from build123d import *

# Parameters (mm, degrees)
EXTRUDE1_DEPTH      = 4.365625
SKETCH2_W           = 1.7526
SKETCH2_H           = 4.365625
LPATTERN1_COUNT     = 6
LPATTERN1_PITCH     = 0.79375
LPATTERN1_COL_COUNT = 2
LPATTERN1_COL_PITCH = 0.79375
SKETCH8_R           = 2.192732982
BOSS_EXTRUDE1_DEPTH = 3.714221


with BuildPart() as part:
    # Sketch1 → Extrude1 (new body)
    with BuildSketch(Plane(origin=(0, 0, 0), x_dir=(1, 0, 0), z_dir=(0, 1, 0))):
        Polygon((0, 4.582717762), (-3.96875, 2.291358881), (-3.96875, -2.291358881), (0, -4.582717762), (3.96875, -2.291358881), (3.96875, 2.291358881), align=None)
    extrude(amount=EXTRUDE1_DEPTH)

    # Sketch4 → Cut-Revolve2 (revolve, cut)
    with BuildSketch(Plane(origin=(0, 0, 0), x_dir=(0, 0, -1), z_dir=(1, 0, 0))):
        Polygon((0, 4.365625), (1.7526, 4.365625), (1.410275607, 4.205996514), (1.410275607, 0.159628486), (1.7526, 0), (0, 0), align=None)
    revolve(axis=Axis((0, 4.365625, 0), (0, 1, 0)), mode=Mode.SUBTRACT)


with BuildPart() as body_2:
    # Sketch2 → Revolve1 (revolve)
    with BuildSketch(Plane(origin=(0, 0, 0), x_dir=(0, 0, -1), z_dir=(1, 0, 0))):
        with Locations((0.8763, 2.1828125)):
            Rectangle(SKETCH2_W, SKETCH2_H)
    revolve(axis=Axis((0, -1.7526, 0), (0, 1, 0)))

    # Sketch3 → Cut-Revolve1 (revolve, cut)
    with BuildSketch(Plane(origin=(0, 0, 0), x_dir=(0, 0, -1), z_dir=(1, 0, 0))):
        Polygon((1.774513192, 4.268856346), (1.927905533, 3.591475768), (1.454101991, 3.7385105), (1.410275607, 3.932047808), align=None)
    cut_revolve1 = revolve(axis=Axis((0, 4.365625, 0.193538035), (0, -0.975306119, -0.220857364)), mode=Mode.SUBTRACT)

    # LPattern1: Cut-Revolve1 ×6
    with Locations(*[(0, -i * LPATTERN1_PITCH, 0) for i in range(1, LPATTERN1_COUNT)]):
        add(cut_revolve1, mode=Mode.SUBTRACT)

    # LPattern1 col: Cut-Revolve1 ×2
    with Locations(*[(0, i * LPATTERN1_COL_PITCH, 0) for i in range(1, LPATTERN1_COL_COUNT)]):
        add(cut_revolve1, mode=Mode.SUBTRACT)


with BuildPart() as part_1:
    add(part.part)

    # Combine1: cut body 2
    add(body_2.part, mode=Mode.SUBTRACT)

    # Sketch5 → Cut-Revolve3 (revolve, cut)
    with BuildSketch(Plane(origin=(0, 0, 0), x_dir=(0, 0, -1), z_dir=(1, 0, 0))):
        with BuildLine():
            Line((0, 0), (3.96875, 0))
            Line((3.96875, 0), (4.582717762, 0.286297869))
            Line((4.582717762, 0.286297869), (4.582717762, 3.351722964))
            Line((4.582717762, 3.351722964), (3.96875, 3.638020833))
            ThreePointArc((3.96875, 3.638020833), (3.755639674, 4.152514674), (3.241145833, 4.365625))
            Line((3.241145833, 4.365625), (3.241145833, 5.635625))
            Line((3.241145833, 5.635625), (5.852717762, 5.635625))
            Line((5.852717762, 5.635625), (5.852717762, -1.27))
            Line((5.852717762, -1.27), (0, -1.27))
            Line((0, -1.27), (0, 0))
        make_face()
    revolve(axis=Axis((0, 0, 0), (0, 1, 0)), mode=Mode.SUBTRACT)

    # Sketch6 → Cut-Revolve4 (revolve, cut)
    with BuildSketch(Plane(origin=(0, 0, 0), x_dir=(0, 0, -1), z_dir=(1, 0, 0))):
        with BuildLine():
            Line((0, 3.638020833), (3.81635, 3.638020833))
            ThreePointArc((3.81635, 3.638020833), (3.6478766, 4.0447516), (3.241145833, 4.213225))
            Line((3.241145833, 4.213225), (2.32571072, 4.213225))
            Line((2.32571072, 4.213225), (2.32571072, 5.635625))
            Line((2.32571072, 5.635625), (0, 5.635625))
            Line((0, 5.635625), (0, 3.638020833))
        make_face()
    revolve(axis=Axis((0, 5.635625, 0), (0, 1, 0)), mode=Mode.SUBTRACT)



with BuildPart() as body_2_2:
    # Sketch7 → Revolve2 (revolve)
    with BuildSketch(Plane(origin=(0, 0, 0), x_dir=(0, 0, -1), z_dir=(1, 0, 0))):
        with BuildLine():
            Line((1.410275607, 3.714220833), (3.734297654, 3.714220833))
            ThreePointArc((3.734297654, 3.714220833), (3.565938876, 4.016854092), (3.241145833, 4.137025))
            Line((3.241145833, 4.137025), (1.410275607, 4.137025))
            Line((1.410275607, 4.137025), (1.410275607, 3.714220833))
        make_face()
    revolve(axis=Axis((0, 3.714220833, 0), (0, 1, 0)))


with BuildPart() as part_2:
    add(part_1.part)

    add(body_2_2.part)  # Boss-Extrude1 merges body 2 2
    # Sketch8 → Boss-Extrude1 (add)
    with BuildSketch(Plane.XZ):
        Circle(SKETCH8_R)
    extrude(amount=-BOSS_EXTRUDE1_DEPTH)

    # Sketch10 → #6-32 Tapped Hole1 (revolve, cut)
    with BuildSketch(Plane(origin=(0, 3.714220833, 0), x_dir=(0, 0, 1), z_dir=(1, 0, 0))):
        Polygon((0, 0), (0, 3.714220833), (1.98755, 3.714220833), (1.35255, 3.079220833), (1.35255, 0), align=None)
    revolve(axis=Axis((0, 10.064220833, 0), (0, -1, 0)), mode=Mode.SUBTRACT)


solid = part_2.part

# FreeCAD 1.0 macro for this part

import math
import FreeCAD as App
import Part
import Sketcher
from FreeCAD import Vector
Q = App.Units.Quantity


def add_polygon(sketch, points):
    """Adds a closed chain of lines whose ends are joined by coincident constraints."""
    first, n = sketch.GeometryCount, len(points)
    for a, b in zip(points, points[1:] + points[:1]):
        sketch.addGeometry(Part.LineSegment(App.Vector(*a, 0), App.Vector(*b, 0)), False)
    for i in range(n):
        sketch.addConstraint(Sketcher.Constraint("Coincident", first + i, 2, first + (i + 1) % n, 1))

doc = App.newDocument("Part")
body = doc.addObject("PartDesign::Body", "Body")

# Sketch on XZ plane
sketch1 = body.newObject("Sketcher::SketchObject", "Sketch")
sketch1.AttachmentSupport = (doc.getObject("XZ_Plane"), [""])
sketch1.MapMode = "FlatFace"
add_polygon(sketch1, [(0, -4.6), (-4, -2.3), (-4, 2.3), (0, 4.6), (4, 2.3), (4, -2.3)])  # lines 0-5
sketch1.addConstraint(Sketcher.Constraint("Vertical", 1))
sketch1.addConstraint(Sketcher.Constraint("Vertical", 4))
sketch1.addConstraint(Sketcher.Constraint("Symmetric", 0, 2, 3, 2, -1, 1))
sketch1.addConstraint(Sketcher.Constraint("Symmetric", 2, 2, 5, 2, -1, 1))
sketch1.addConstraint(Sketcher.Constraint("PointOnObject", 2, 2, -2))
sketch1.addConstraint(Sketcher.Constraint("Parallel", 2, 5))
sketch1.addConstraint(Sketcher.Constraint("Horizontal", 1, 2, 3, 2))
sketch1.addConstraint(Sketcher.Constraint("Angle", 0, Q("150 deg")))
sketch1.addConstraint(Sketcher.Constraint("DistanceX", 0, 2, -1, 1, Q("0.15625 in")))
sketch1.addConstraint(Sketcher.Constraint("DistanceY", 1, 1, 1, 2, 4.582718))
pad1 = body.newObject("PartDesign::Pad", "Pad")
pad1.Profile = sketch1
pad1.Length = Q("0.171875 in")
pad1.Reversed = True

# Sketch on YZ plane
sketch2 = body.newObject("Sketcher::SketchObject", "Sketch001")
sketch2.AttachmentSupport = (doc.getObject("YZ_Plane"), [""])
sketch2.MapMode = "FlatFace"
add_polygon(sketch2, [(4.37, -1.75), (4.37, 0), (0, 0), (0, -1.75), (0.16, -1.41), (4.21, -1.41)])  # lines 0-5
sketch2.addConstraint(Sketcher.Constraint("Vertical", 0))
sketch2.addConstraint(Sketcher.Constraint("Horizontal", 1))
sketch2.addConstraint(Sketcher.Constraint("Vertical", 2))
sketch2.addConstraint(Sketcher.Constraint("Horizontal", 4))
sketch2.addConstraint(Sketcher.Constraint("Coincident", 1, 2, -1, 1))
sketch2.addConstraint(Sketcher.Constraint("Horizontal", 2, 2, 5, 2))
sketch2.addConstraint(Sketcher.Constraint("Equal", 3, 5))
sketch2.addConstraint(Sketcher.Constraint("Angle", 3, Q("65 deg")))
sketch2.addConstraint(Sketcher.Constraint("DistanceX", 1, 2, 1, 1, Q("0.171875 in")))
sketch2.addConstraint(Sketcher.Constraint("DistanceY", 0, 1, 0, 2, Q("0.069 in")))
sketch2.addConstraint(Sketcher.Constraint("DistanceX", 4, 1, 4, 2, 4.046368))
groove = body.newObject("PartDesign::Groove", "Groove")
groove.Profile = sketch2
groove.ReferenceAxis = (sketch2, ["H_Axis"])
groove.Angle = 360
body2 = doc.addObject("PartDesign::Body", "Body001")

# Sketch on YZ plane
sketch3 = body2.newObject("Sketcher::SketchObject", "Sketch002")
sketch3.AttachmentSupport = (doc.getObject("YZ_Plane001"), [""])
sketch3.MapMode = "FlatFace"
add_polygon(sketch3, [(4.4, 0), (0, 0), (0, -1.8), (4.4, -1.8)])  # lines 0-3
sketch3.addConstraint(Sketcher.Constraint("Horizontal", 0))
sketch3.addConstraint(Sketcher.Constraint("Vertical", 1))
sketch3.addConstraint(Sketcher.Constraint("Horizontal", 2))
sketch3.addConstraint(Sketcher.Constraint("Vertical", 3))
sketch3.addConstraint(Sketcher.Constraint("Coincident", 0, 2, -1, 1))
sketch3.addConstraint(Sketcher.Constraint("DistanceX", 0, 2, 0, 1, Q("0.171875 in")))
sketch3.addConstraint(Sketcher.Constraint("DistanceY", 1, 2, 1, 1, Q("0.069 in")))
revolution = body2.newObject("PartDesign::Revolution", "Revolution")
revolution.Profile = sketch3
revolution.ReferenceAxis = (sketch3, ["H_Axis"])
revolution.Angle = 360

# Sketch on YZ plane
sketch4 = body2.newObject("Sketcher::SketchObject", "Sketch003")
sketch4.AttachmentSupport = (doc.getObject("YZ_Plane001"), [""])
sketch4.MapMode = "FlatFace"
add_polygon(sketch4, [(3.59, -1.93), (4.27, -1.77), (3.93, -1.41), (3.74, -1.45)])  # lines 0-3
sketch4.addGeometry(Part.LineSegment(Vector(3.85, 0.08, 0), Vector(3.17, -0.08, 0)), True)  # axis
sketch4.addConstraint(Sketcher.Constraint("Parallel", 0, 2))
sketch4.addConstraint(Sketcher.Constraint("Parallel", 2, 4))
sketch4.addConstraint(Sketcher.Constraint("Equal", 1, 3))
sketch4.addConstraint(Sketcher.Constraint("Equal", 0, 4))
sketch4.addConstraint(Sketcher.Constraint("DistanceY", 2, 2, -1, 1, 1.454102))
sketch4.addConstraint(Sketcher.Constraint("DistanceY", 2, 2, 4, 1, 1.530798))
sketch4.addConstraint(Sketcher.Constraint("DistanceY", 3, 2, 4, 1, 2.004602))
sketch4.addConstraint(Sketcher.Constraint("Distance", 0, 0.694531))
sketch4.addConstraint(Sketcher.Constraint("DistanceX", -1, 1, 2, 2, 3.73851))
sketch4.addConstraint(Sketcher.Constraint("DistanceX", -1, 1, 4, 1, 3.849651))
sketch4.addConstraint(Sketcher.Constraint("DistanceX", -1, 1, 4, 2, 3.172271))
sketch4.addConstraint(Sketcher.Constraint("DistanceX", 1, 2, 0, 2, 0.336809))
groove2 = body2.newObject("PartDesign::Groove", "Groove001")
groove2.Profile = sketch4
groove2.ReferenceAxis = (sketch4, ["Axis0"])
groove2.Angle = 360
doc.recompute()

linearpattern = body2.newObject("PartDesign::LinearPattern", "LinearPattern")
linearpattern.Originals = [groove2]
linearpattern.Direction = (doc.getObject("Y_Axis001"), [""])
linearpattern.Mode = "offset"
linearpattern.Offset = Q("0.03125 in")
linearpattern.Occurrences = 6
linearpattern.Reversed = True
body2.Tip = linearpattern
doc.recompute()

linearpattern2 = body2.newObject("PartDesign::LinearPattern", "LinearPattern001")
linearpattern2.Originals = [groove2]
linearpattern2.Direction = (doc.getObject("Y_Axis001"), [""])
linearpattern2.Mode = "offset"
linearpattern2.Offset = Q("0.03125 in")
linearpattern2.Occurrences = 2
body2.Tip = linearpattern2
doc.recompute()

boolean = body.newObject("PartDesign::Boolean", "Boolean")
boolean.Type = "Cut"
boolean.addObjects([body2])

# Sketch on YZ plane
sketch5 = body.newObject("Sketcher::SketchObject", "Sketch004")
sketch5.AttachmentSupport = (doc.getObject("YZ_Plane"), [""])
sketch5.MapMode = "FlatFace"
sketch5.addGeometry(Part.LineSegment(Vector(0, -4, 0), Vector(0, 0, 0)), False)
sketch5.addGeometry(Part.LineSegment(Vector(0, 0, 0), Vector(-1.3, 0, 0)), False)
sketch5.addGeometry(Part.LineSegment(Vector(-1.3, 0, 0), Vector(-1.3, -5.9, 0)), False)
sketch5.addGeometry(Part.LineSegment(Vector(-1.3, -5.9, 0), Vector(5.6, -5.9, 0)), False)
sketch5.addGeometry(Part.LineSegment(Vector(5.6, -5.9, 0), Vector(5.6, -3.2, 0)), False)
sketch5.addGeometry(Part.LineSegment(Vector(5.6, -3.2, 0), Vector(4.4, -3.2, 0)), False)
sketch5.addGeometry(Part.ArcOfCircle(Part.Circle(Vector(3.6, -3.2, 0), Vector(0, 0, 1), 0.7), math.radians(-90), math.radians(0)), False)
sketch5.addGeometry(Part.LineSegment(Vector(3.6, -4, 0), Vector(3.4, -4.6, 0)), False)
sketch5.addGeometry(Part.LineSegment(Vector(3.4, -4.6, 0), Vector(0.3, -4.6, 0)), False)
sketch5.addGeometry(Part.LineSegment(Vector(0.3, -4.6, 0), Vector(0, -4, 0)), False)
sketch5.addConstraint(Sketcher.Constraint("Coincident", 0, 2, 1, 1))
sketch5.addConstraint(Sketcher.Constraint("Coincident", 1, 2, 2, 1))
sketch5.addConstraint(Sketcher.Constraint("Coincident", 2, 2, 3, 1))
sketch5.addConstraint(Sketcher.Constraint("Coincident", 3, 2, 4, 1))
sketch5.addConstraint(Sketcher.Constraint("Coincident", 4, 2, 5, 1))
sketch5.addConstraint(Sketcher.Constraint("Coincident", 5, 2, 6, 2))
sketch5.addConstraint(Sketcher.Constraint("Coincident", 6, 1, 7, 1))
sketch5.addConstraint(Sketcher.Constraint("Coincident", 7, 2, 8, 1))
sketch5.addConstraint(Sketcher.Constraint("Coincident", 8, 2, 9, 1))
sketch5.addConstraint(Sketcher.Constraint("Coincident", 9, 2, 0, 1))
sketch5.addConstraint(Sketcher.Constraint("Vertical", 0))
sketch5.addConstraint(Sketcher.Constraint("Horizontal", 1))
sketch5.addConstraint(Sketcher.Constraint("Vertical", 2))
sketch5.addConstraint(Sketcher.Constraint("Horizontal", 3))
sketch5.addConstraint(Sketcher.Constraint("Vertical", 4))
sketch5.addConstraint(Sketcher.Constraint("Horizontal", 5))
sketch5.addConstraint(Sketcher.Constraint("Horizontal", 8))
sketch5.addConstraint(Sketcher.Constraint("Coincident", 0, 2, -1, 1))
sketch5.addConstraint(Sketcher.Constraint("Horizontal", 6, 3, 4, 2))
sketch5.addConstraint(Sketcher.Constraint("Horizontal", 6, 1, 9, 2))
sketch5.addConstraint(Sketcher.Constraint("Equal", 1, 5))
sketch5.addConstraint(Sketcher.Constraint("Equal", 7, 9))
sketch5.addConstraint(Sketcher.Constraint("Angle", 7, Q("-115 deg")))
sketch5.addConstraint(Sketcher.Constraint("DistanceX", 1, 2, 1, 1, Q("0.05 in")))
sketch5.addConstraint(Sketcher.Constraint("DistanceY", 0, 1, 0, 2, Q("0.15625 in")))
sketch5.addConstraint(Sketcher.Constraint("DistanceY", 3, 2, 7, 2, Q("0.05 in")))
sketch5.addConstraint(Sketcher.Constraint("DistanceX", -1, 1, 5, 2, Q("0.171875 in")))
sketch5.addConstraint(Sketcher.Constraint("Radius", 6, 0.727604))
sketch5.addConstraint(Sketcher.Constraint("DistanceY", 4, 1, 4, 2, 2.611572))
sketch5.addConstraint(Sketcher.Constraint("DistanceX", 8, 2, 8, 1, 3.065425))
groove3 = body.newObject("PartDesign::Groove", "Groove002")
groove3.Profile = sketch5
groove3.ReferenceAxis = (sketch5, ["H_Axis"])
groove3.Angle = 360

# Sketch on YZ plane
sketch6 = body.newObject("Sketcher::SketchObject", "Sketch005")
sketch6.AttachmentSupport = (doc.getObject("YZ_Plane"), [""])
sketch6.MapMode = "FlatFace"
sketch6.addGeometry(Part.LineSegment(Vector(3.6, 0, 0), Vector(3.6, -3.8, 0)), False)
sketch6.addGeometry(Part.ArcOfCircle(Part.Circle(Vector(3.6, -3.2, 0), Vector(0, 0, 1), 0.6), math.radians(-90), math.radians(0)), False)
sketch6.addGeometry(Part.LineSegment(Vector(4.2, -3.2, 0), Vector(4.2, -2.3, 0)), False)
sketch6.addGeometry(Part.LineSegment(Vector(4.2, -2.3, 0), Vector(5.6, -2.3, 0)), False)
sketch6.addGeometry(Part.LineSegment(Vector(5.6, -2.3, 0), Vector(5.6, 0, 0)), False)
sketch6.addGeometry(Part.LineSegment(Vector(5.6, 0, 0), Vector(3.6, 0, 0)), False)
sketch6.addConstraint(Sketcher.Constraint("Coincident", 0, 2, 1, 1))
sketch6.addConstraint(Sketcher.Constraint("Tangent", 1, 2, 2, 1))
sketch6.addConstraint(Sketcher.Constraint("Coincident", 2, 2, 3, 1))
sketch6.addConstraint(Sketcher.Constraint("Coincident", 3, 2, 4, 1))
sketch6.addConstraint(Sketcher.Constraint("Coincident", 4, 2, 5, 1))
sketch6.addConstraint(Sketcher.Constraint("Coincident", 5, 2, 0, 1))
sketch6.addConstraint(Sketcher.Constraint("Vertical", 0))
sketch6.addConstraint(Sketcher.Constraint("Vertical", 2))
sketch6.addConstraint(Sketcher.Constraint("Horizontal", 3))
sketch6.addConstraint(Sketcher.Constraint("Vertical", 4))
sketch6.addConstraint(Sketcher.Constraint("Horizontal", 5))
sketch6.addConstraint(Sketcher.Constraint("PointOnObject", 4, 2, -1))
sketch6.addConstraint(Sketcher.Constraint("Vertical", 1, 3, 0, 2))
sketch6.addConstraint(Sketcher.Constraint("DistanceX", 3, 1, 3, 2, Q("0.056 in")))
sketch6.addConstraint(Sketcher.Constraint("Radius", 1, 0.575204))
sketch6.addConstraint(Sketcher.Constraint("DistanceY", 0, 2, 0, 1, 3.81635))
sketch6.addConstraint(Sketcher.Constraint("DistanceY", 4, 1, 4, 2, 2.325711))
sketch6.addConstraint(Sketcher.Constraint("DistanceX", -1, 1, 1, 3, 3.638021))
groove4 = body.newObject("PartDesign::Groove", "Groove003")
groove4.Profile = sketch6
groove4.ReferenceAxis = (sketch6, ["H_Axis"])
groove4.Angle = 360
body3 = doc.addObject("PartDesign::Body", "Body002")

# Sketch on YZ plane
sketch7 = body3.newObject("Sketcher::SketchObject", "Sketch006")
sketch7.AttachmentSupport = (doc.getObject("YZ_Plane002"), [""])
sketch7.MapMode = "FlatFace"
sketch7.addGeometry(Part.LineSegment(Vector(3.71, -1.41, 0), Vector(3.71, -3.73, 0)), False)
sketch7.addGeometry(Part.ArcOfCircle(Part.Circle(Vector(3.64, -3.24, 0), Vector(0, 0, 1), 0.5), math.radians(-81), math.radians(0)), False)
sketch7.addGeometry(Part.LineSegment(Vector(4.14, -3.24, 0), Vector(4.14, -1.41, 0)), False)
sketch7.addGeometry(Part.LineSegment(Vector(4.14, -1.41, 0), Vector(3.71, -1.41, 0)), False)
sketch7.addConstraint(Sketcher.Constraint("Coincident", 0, 2, 1, 1))
sketch7.addConstraint(Sketcher.Constraint("Tangent", 1, 2, 2, 1))
sketch7.addConstraint(Sketcher.Constraint("Coincident", 2, 2, 3, 1))
sketch7.addConstraint(Sketcher.Constraint("Coincident", 3, 2, 0, 1))
sketch7.addConstraint(Sketcher.Constraint("Vertical", 0))
sketch7.addConstraint(Sketcher.Constraint("Vertical", 2))
sketch7.addConstraint(Sketcher.Constraint("Horizontal", 3))
sketch7.addConstraint(Sketcher.Constraint("DistanceX", 1, 3, 0, 2, Q("0.003 in")))
sketch7.addConstraint(Sketcher.Constraint("Radius", 1, 0.499004))
sketch7.addConstraint(Sketcher.Constraint("DistanceY", 2, 1, 2, 2, 1.83087))
sketch7.addConstraint(Sketcher.Constraint("DistanceX", -1, 1, 1, 3, 3.638021))
sketch7.addConstraint(Sketcher.Constraint("DistanceY", 1, 3, -1, 1, 3.241146))
revolution2 = body3.newObject("PartDesign::Revolution", "Revolution001")
revolution2.Profile = sketch7
revolution2.ReferenceAxis = (sketch7, ["H_Axis"])
revolution2.Angle = 360
body.AllowCompound = True
doc.recompute()

boolean2 = body.newObject("PartDesign::Boolean", "Boolean001")
boolean2.Type = "Fuse"
boolean2.addObjects([body3])

# Sketch on XZ plane
sketch8 = body.newObject("Sketcher::SketchObject", "Sketch007")
sketch8.AttachmentSupport = (doc.getObject("XZ_Plane"), [""])
sketch8.MapMode = "FlatFace"
sketch8.addGeometry(Part.Circle(Vector(0, 0, 0), Vector(0, 0, 1), 2.2), False)
sketch8.addConstraint(Sketcher.Constraint("Coincident", 0, 3, -1, 1))
sketch8.addConstraint(Sketcher.Constraint("Diameter", 0, 4.385466))
pad2 = body.newObject("PartDesign::Pad", "Pad001")
pad2.Profile = sketch8
pad2.Length = 3.714221
pad2.Reversed = True

# Sketch on YZ plane
sketch9 = body.newObject("Sketcher::SketchObject", "Sketch008")
sketch9.AttachmentSupport = (doc.getObject("YZ_Plane"), [""])
sketch9.MapMode = "FlatFace"
add_polygon(sketch9, [(0, 0), (3.7, 0), (3.7, 1.4), (0.6, 1.4), (0, 2)])  # lines 0-4
sketch9.addConstraint(Sketcher.Constraint("Horizontal", 0))
sketch9.addConstraint(Sketcher.Constraint("Vertical", 1))
sketch9.addConstraint(Sketcher.Constraint("Horizontal", 2))
sketch9.addConstraint(Sketcher.Constraint("Vertical", 4))
sketch9.addConstraint(Sketcher.Constraint("Coincident", 4, 2, -1, 1))
sketch9.addConstraint(Sketcher.Constraint("Angle", 3, Q("135 deg")))
sketch9.addConstraint(Sketcher.Constraint("DistanceX", -1, 1, 2, 2, Q("0.025 in")))
sketch9.addConstraint(Sketcher.Constraint("DistanceX", 0, 1, 0, 2, 3.714221))
sketch9.addConstraint(Sketcher.Constraint("DistanceY", 1, 1, 1, 2, 1.35255))
groove5 = body.newObject("PartDesign::Groove", "Groove004")
groove5.Profile = sketch9
groove5.ReferenceAxis = (sketch9, ["H_Axis"])
groove5.Angle = 360

doc.recompute()
